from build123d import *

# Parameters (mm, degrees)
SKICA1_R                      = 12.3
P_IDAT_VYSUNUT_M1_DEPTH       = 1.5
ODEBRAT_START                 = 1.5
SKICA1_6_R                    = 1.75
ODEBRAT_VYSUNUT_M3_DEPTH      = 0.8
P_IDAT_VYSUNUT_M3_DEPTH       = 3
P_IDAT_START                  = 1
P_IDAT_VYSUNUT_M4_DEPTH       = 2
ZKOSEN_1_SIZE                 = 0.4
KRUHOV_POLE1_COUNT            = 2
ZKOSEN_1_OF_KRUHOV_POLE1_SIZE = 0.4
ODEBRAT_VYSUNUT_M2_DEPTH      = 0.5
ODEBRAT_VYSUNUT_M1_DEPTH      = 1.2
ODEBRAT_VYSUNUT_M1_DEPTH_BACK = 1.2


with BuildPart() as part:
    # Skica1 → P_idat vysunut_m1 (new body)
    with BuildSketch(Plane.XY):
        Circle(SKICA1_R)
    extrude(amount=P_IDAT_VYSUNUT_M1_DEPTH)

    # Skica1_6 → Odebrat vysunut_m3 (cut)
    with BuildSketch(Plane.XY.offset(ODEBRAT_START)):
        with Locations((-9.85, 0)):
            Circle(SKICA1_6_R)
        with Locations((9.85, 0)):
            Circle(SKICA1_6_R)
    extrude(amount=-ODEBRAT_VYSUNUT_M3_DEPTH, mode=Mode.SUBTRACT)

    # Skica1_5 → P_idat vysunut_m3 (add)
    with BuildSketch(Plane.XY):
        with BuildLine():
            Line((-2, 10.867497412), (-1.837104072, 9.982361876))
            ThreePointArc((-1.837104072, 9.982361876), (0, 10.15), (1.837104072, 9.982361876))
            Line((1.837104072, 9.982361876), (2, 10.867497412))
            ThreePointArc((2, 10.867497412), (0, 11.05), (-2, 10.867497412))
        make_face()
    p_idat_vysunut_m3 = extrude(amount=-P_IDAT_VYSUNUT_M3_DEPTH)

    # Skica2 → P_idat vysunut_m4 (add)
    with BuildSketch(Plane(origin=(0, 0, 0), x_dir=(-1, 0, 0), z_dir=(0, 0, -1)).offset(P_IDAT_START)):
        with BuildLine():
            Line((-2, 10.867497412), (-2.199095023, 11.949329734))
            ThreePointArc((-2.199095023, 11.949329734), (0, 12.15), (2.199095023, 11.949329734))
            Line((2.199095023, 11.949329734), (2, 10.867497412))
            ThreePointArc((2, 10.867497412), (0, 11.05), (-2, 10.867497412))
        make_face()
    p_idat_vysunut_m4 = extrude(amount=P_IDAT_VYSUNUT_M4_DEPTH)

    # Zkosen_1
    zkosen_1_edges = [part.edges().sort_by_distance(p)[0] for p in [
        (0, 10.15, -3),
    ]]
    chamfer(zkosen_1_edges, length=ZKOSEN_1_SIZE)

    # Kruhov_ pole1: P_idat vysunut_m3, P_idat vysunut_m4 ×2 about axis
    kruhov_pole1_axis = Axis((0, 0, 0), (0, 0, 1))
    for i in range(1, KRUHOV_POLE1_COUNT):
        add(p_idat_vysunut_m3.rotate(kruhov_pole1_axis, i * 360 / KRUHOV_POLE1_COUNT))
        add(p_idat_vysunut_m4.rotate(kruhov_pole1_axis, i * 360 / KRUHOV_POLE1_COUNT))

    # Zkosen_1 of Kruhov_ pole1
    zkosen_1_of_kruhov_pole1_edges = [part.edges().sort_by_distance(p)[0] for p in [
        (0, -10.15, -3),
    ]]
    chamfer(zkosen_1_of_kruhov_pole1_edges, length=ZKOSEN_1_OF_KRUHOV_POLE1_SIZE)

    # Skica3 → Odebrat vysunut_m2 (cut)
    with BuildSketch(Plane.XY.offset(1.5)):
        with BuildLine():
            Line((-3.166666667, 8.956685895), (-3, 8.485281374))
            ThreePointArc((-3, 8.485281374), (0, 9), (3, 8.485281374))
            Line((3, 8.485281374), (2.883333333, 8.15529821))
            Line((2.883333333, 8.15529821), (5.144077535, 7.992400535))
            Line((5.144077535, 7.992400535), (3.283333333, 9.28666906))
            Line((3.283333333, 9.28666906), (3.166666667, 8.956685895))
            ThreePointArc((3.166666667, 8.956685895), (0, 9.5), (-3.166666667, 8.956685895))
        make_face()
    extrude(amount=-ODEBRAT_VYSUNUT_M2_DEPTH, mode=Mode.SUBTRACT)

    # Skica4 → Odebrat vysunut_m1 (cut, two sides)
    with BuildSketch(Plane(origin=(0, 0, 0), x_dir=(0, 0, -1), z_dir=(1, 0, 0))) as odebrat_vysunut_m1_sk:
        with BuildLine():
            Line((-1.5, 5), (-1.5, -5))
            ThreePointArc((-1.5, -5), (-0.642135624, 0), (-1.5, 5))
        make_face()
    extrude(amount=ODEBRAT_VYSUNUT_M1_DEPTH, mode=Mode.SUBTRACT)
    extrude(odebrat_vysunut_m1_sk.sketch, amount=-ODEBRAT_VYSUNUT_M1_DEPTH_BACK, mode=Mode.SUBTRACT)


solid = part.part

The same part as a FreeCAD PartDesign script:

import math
import FreeCAD as App
import Part
import Sketcher
Q = App.Units.Quantity


def edges_at(feature, points):
    """Names of the edges that pass closest to the given points."""
    edges = feature.Shape.Edges
    near = lambda p: min(range(len(edges)), key=lambda i: edges[i].distToShape(Part.Vertex(*p))[0])
    return sorted({f"Edge{near(p) + 1}" for p in points})

doc = App.newDocument("Part")
body = doc.addObject("PartDesign::Body", "Body")

# Sketch on XY plane
sketch1 = body.newObject("Sketcher::SketchObject", "Sketch")
sketch1.AttachmentSupport = (doc.getObject("XY_Plane"), [""])
sketch1.MapMode = "FlatFace"
sketch1.addGeometry(Part.Circle(App.Vector(0, 0, 0), App.Vector(0, 0, 1), 12), False)
sketch1.addConstraint(Sketcher.Constraint("Coincident", 0, 3, -1, 1))
sketch1.addConstraint(Sketcher.Constraint("Diameter", 0, Q("24.6 mm")))
pad1 = body.newObject("PartDesign::Pad", "Pad")
pad1.Profile = sketch1
pad1.Length = 1.5

# Sketch on XY plane
sketch2 = body.newObject("Sketcher::SketchObject", "Sketch001")
sketch2.AttachmentSupport = (doc.getObject("XY_Plane"), [""])
sketch2.MapMode = "FlatFace"
sketch2.AttachmentOffset = App.Placement(App.Vector(0, 0, 1.5), App.Rotation())
sketch2.addGeometry(Part.Circle(App.Vector(-9.8, 0, 0), App.Vector(0, 0, 1), 1.8), False)
sketch2.addGeometry(Part.Circle(App.Vector(9.8, 0, 0), App.Vector(0, 0, 1), 1.8), False)
sketch2.addConstraint(Sketcher.Constraint("Equal", 0, 1))
sketch2.addConstraint(Sketcher.Constraint("Symmetric", 0, 3, 1, 3, -1, 1))
sketch2.addConstraint(Sketcher.Constraint("PointOnObject", 0, 3, -1))
sketch2.addConstraint(Sketcher.Constraint("Diameter", 0, Q("3.5 mm")))
sketch2.addConstraint(Sketcher.Constraint("DistanceX", 0, 3, 1, 3, Q("19.7 mm")))
pocket1 = body.newObject("PartDesign::Pocket", "Pocket")
pocket1.Profile = sketch2
pocket1.Length = 0.8

# Sketch on XY plane
sketch3 = body.newObject("Sketcher::SketchObject", "Sketch002")
sketch3.AttachmentSupport = (doc.getObject("XY_Plane"), [""])
sketch3.MapMode = "FlatFace"
sketch3.addGeometry(Part.LineSegment(App.Vector(-2, 10.9, 0), App.Vector(-1.8, 10, 0)), False)
sketch3.addGeometry(Part.ArcOfCircle(Part.Circle(App.Vector(0, 0, 0), App.Vector(0, 0, 1), 10.1), math.radians(80), math.radians(100)), False)
sketch3.addGeometry(Part.LineSegment(App.Vector(1.8, 10, 0), App.Vector(2, 10.9, 0)), False)
sketch3.addGeometry(Part.ArcOfCircle(Part.Circle(App.Vector(0, 0, 0), App.Vector(0, 0, 1), 11.1), math.radians(80), math.radians(100)), False)
sketch3.addConstraint(Sketcher.Constraint("Coincident", 0, 2, 1, 2))
sketch3.addConstraint(Sketcher.Constraint("Coincident", 1, 1, 2, 1))
sketch3.addConstraint(Sketcher.Constraint("Coincident", 2, 2, 3, 1))
sketch3.addConstraint(Sketcher.Constraint("Coincident", 3, 2, 0, 1))
sketch3.addConstraint(Sketcher.Constraint("Coincident", 1, 3, -1, 1))
sketch3.addConstraint(Sketcher.Constraint("Coincident", 3, 3, -1, 1))
sketch3.addConstraint(Sketcher.Constraint("Horizontal", 0, 2, 1, 1))
sketch3.addConstraint(Sketcher.Constraint("Horizontal", 2, 2, 3, 2))
sketch3.addConstraint(Sketcher.Constraint("Radius", 1, Q("10.15 mm")))
sketch3.addConstraint(Sketcher.Constraint("Radius", 3, Q("11.05 mm")))
sketch3.addConstraint(Sketcher.Constraint("DistanceX", -1, 1, 2, 2, Q("2 mm")))
sketch3.addConstraint(Sketcher.Constraint("DistanceY", -1, 1, 0, 2, Q("9.982362 mm")))
pad2 = body.newObject("PartDesign::Pad", "Pad001")
pad2.Profile = sketch3
pad2.Length = 3
pad2.Reversed = True

# Sketch on XY plane
sketch4 = body.newObject("Sketcher::SketchObject", "Sketch003")
sketch4.AttachmentSupport = (doc.getObject("XY_Plane"), [""])
sketch4.MapMode = "FlatFace"
sketch4.AttachmentOffset = App.Placement(App.Vector(0, 0, -1), App.Rotation())
sketch4.addGeometry(Part.LineSegment(App.Vector(2.2, 11.9, 0), App.Vector(2, 10.9, 0)), False)
sketch4.addGeometry(Part.ArcOfCircle(Part.Circle(App.Vector(0, 0, 0), App.Vector(0, 0, 1), 11.1), math.radians(80), math.radians(100)), False)
sketch4.addGeometry(Part.LineSegment(App.Vector(-2, 10.9, 0), App.Vector(-2.2, 11.9, 0)), False)
sketch4.addGeometry(Part.ArcOfCircle(Part.Circle(App.Vector(0, 0, 0), App.Vector(0, 0, 1), 12.2), math.radians(80), math.radians(100)), False)
sketch4.addConstraint(Sketcher.Constraint("Coincident", 0, 2, 1, 1))
sketch4.addConstraint(Sketcher.Constraint("Coincident", 1, 2, 2, 1))
sketch4.addConstraint(Sketcher.Constraint("Coincident", 2, 2, 3, 2))
sketch4.addConstraint(Sketcher.Constraint("Coincident", 3, 1, 0, 1))
sketch4.addConstraint(Sketcher.Constraint("Coincident", 1, 3, -1, 1))
sketch4.addConstraint(Sketcher.Constraint("Coincident", 3, 3, -1, 1))
sketch4.addConstraint(Sketcher.Constraint("Horizontal", 0, 2, 1, 2))
sketch4.addConstraint(Sketcher.Constraint("Horizontal", 2, 2, 3, 1))
sketch4.addConstraint(Sketcher.Constraint("Radius", 1, Q("11.05 mm")))
sketch4.addConstraint(Sketcher.Constraint("Radius", 3, Q("12.15 mm")))
sketch4.addConstraint(Sketcher.Constraint("DistanceX", -1, 1, 0, 2, Q("2 mm")))
sketch4.addConstraint(Sketcher.Constraint("DistanceY", -1, 1, 2, 2, Q("11.94933 mm")))
pad3 = body.newObject("PartDesign::Pad", "Pad002")
pad3.Profile = sketch4
pad3.Length = 2
pad3.Reversed = True
doc.recompute()

chamfer = body.newObject("PartDesign::Chamfer", "Chamfer")
chamfer.Base = (pad3, edges_at(pad3, [(0, 10.15, -3)]))
chamfer.Size = 0.4
doc.recompute()

polarpattern = body.newObject("PartDesign::PolarPattern", "PolarPattern")
polarpattern.Originals = [pad2, pad3]
polarpattern.Axis = (doc.getObject("Z_Axis"), [""])
polarpattern.Angle = 360
polarpattern.Occurrences = 2
body.Tip = polarpattern
doc.recompute()

chamfer2 = body.newObject("PartDesign::Chamfer", "Chamfer001")
chamfer2.Base = (polarpattern, edges_at(polarpattern, [(0, -10.15, -3)]))
chamfer2.Size = 0.4

# Sketch on XY plane
sketch5 = body.newObject("Sketcher::SketchObject", "Sketch004")
sketch5.AttachmentSupport = (doc.getObject("XY_Plane"), [""])
sketch5.MapMode = "FlatFace"
sketch5.AttachmentOffset = App.Placement(App.Vector(0, 0, 1.5), App.Rotation())
sketch5.addGeometry(Part.LineSegment(App.Vector(-3.17, 8.96, 0), App.Vector(-3, 8.49, 0)), False)
sketch5.addGeometry(Part.ArcOfCircle(Part.Circle(App.Vector(0, 0, 0), App.Vector(0, 0, 1), 9), math.radians(71), math.radians(109)), False)
sketch5.addGeometry(Part.LineSegment(App.Vector(3, 8.49, 0), App.Vector(2.88, 8.16, 0)), False)
sketch5.addGeometry(Part.LineSegment(App.Vector(2.88, 8.16, 0), App.Vector(5.14, 7.99, 0)), False)
sketch5.addGeometry(Part.LineSegment(App.Vector(5.14, 7.99, 0), App.Vector(3.28, 9.29, 0)), False)
sketch5.addGeometry(Part.LineSegment(App.Vector(3.28, 9.29, 0), App.Vector(3.17, 8.96, 0)), False)
sketch5.addGeometry(Part.ArcOfCircle(Part.Circle(App.Vector(0, 0, 0), App.Vector(0, 0, 1), 9.5), math.radians(71), math.radians(109)), False)
sketch5.addConstraint(Sketcher.Constraint("Coincident", 0, 2, 1, 2))
sketch5.addConstraint(Sketcher.Constraint("Coincident", 1, 1, 2, 1))
sketch5.addConstraint(Sketcher.Constraint("Coincident", 2, 2, 3, 1))
sketch5.addConstraint(Sketcher.Constraint("Coincident", 3, 2, 4, 1))
sketch5.addConstraint(Sketcher.Constraint("Coincident", 4, 2, 5, 1))
sketch5.addConstraint(Sketcher.Constraint("Coincident", 5, 2, 6, 1))
sketch5.addConstraint(Sketcher.Constraint("Coincident", 6, 2, 0, 1))
sketch5.addConstraint(Sketcher.Constraint("Coincident", 1, 3, -1, 1))
sketch5.addConstraint(Sketcher.Constraint("Coincident", 6, 3, -1, 1))
sketch5.addConstraint(Sketcher.Constraint("Parallel", 2, 5))
sketch5.addConstraint(Sketcher.Constraint("Horizontal", 0, 2, 1, 1))
sketch5.addConstraint(Sketcher.Constraint("Horizontal", 5, 2, 6, 2))
sketch5.addConstraint(Sketcher.Constraint("Equal", 3, 4))
sketch5.addConstraint(Sketcher.Constraint("Equal", 2, 5))
sketch5.addConstraint(Sketcher.Constraint("Radius", 1, Q("9 mm")))
sketch5.addConstraint(Sketcher.Constraint("Radius", 6, Q("9.5 mm")))
sketch5.addConstraint(Sketcher.Constraint("DistanceX", 0, 2, -1, 1, Q("3 mm")))
sketch5.addConstraint(Sketcher.Constraint("DistanceX", 2, 2, 4, 2, Q("0.4 mm")))
sketch5.addConstraint(Sketcher.Constraint("Distance", 2, Q("0.35 mm")))
sketch5.addConstraint(Sketcher.Constraint("DistanceX", 6, 2, 2, 2, Q("6.05 mm")))
sketch5.addConstraint(Sketcher.Constraint("DistanceY", -1, 1, 3, 2, Q("7.992401 mm")))
pocket2 = body.newObject("PartDesign::Pocket", "Pocket001")
pocket2.Profile = sketch5
pocket2.Length = 0.5

# Sketch on YZ plane
sketch6 = body.newObject("Sketcher::SketchObject", "Sketch005")
sketch6.AttachmentSupport = (doc.getObject("YZ_Plane"), [""])
sketch6.MapMode = "FlatFace"
sketch6.addGeometry(Part.LineSegment(App.Vector(5, 2, 0), App.Vector(-5, 2, 0)), False)
sketch6.addGeometry(Part.ArcOfCircle(Part.Circle(App.Vector(0, 16, 0), App.Vector(0, 0, 1), 15), math.radians(-109), math.radians(-71)), False)
sketch6.addConstraint(Sketcher.Constraint("Coincident", 0, 1, 1, 2))
sketch6.addConstraint(Sketcher.Constraint("Coincident", 1, 1, 0, 2))
sketch6.addConstraint(Sketcher.Constraint("Horizontal", 0))
sketch6.addConstraint(Sketcher.Constraint("PointOnObject", 1, 3, -2))
sketch6.addConstraint(Sketcher.Constraint("Radius", 1, Q("15 mm")))
sketch6.addConstraint(Sketcher.Constraint("DistanceX", 0, 2, 0, 1, Q("10 mm")))
sketch6.addConstraint(Sketcher.Constraint("DistanceY", -1, 1, 0, 1, Q("1.5 mm")))
pocket3 = body.newObject("PartDesign::Pocket", "Pocket002")
pocket3.Profile = sketch6
pocket3.Type = "TwoLengths"
pocket3.Length = 1.2
pocket3.Length2 = 1.2
pocket3.Reversed = True

doc.recompute()
